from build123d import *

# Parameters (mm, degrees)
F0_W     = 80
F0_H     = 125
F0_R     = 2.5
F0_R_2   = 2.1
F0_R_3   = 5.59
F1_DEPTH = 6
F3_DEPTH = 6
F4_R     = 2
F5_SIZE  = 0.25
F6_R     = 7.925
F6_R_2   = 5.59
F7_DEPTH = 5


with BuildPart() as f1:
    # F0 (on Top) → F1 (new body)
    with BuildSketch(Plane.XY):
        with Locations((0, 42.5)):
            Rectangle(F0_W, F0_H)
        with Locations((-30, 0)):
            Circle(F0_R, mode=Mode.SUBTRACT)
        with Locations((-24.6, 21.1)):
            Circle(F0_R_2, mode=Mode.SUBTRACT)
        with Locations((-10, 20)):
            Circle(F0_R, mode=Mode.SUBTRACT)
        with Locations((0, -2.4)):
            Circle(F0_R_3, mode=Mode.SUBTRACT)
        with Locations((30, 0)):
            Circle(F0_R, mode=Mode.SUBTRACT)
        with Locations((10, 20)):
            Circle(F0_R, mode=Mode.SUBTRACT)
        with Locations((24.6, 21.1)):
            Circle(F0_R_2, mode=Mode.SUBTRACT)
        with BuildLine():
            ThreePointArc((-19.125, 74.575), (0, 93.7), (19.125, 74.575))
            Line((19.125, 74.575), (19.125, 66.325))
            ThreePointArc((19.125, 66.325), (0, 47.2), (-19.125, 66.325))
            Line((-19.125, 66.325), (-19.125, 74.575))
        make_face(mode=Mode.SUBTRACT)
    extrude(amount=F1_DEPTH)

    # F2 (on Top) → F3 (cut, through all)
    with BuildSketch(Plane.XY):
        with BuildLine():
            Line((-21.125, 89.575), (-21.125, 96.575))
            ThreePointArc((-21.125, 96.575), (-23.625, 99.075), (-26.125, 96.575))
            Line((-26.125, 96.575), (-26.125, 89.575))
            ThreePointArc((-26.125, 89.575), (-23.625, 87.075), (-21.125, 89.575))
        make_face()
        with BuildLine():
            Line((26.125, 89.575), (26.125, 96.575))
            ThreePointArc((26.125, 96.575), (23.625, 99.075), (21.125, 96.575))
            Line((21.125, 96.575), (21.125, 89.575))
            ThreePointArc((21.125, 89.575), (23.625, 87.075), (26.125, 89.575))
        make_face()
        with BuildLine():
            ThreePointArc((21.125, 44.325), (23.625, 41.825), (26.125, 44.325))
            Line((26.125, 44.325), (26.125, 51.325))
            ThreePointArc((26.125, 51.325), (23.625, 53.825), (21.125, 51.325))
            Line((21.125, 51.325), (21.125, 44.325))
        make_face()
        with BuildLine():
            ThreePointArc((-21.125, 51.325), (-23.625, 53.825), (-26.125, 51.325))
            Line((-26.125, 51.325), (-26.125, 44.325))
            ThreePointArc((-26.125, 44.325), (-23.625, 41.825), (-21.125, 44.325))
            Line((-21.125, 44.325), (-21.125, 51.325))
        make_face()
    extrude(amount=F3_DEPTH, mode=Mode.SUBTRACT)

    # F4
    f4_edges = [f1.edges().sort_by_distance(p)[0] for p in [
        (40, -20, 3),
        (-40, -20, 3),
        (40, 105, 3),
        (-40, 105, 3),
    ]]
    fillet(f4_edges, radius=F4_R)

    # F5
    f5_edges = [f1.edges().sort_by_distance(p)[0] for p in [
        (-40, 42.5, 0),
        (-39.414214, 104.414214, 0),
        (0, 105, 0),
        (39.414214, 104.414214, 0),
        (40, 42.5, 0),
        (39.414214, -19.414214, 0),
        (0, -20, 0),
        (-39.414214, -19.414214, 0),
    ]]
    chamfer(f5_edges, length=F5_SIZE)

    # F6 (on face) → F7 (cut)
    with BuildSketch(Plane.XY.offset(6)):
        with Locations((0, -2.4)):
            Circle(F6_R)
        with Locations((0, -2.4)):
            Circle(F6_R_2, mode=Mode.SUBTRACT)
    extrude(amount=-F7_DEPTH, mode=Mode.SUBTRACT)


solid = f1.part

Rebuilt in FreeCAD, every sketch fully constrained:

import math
import FreeCAD as App
import Part
import Sketcher
Q = App.Units.Quantity


def edges_at(feature, points):
    """Names of the edges that pass closest to the given points."""
    edges = feature.Shape.Edges
    near = lambda p: min(range(len(edges)), key=lambda i: edges[i].distToShape(Part.Vertex(*p))[0])
    return sorted({f"Edge{near(p) + 1}" for p in points})

doc = App.newDocument("Part")
body = doc.addObject("PartDesign::Body", "Body")

# Sketch on XY plane
sketch1 = body.newObject("Sketcher::SketchObject", "Sketch")
sketch1.AttachmentSupport = (doc.getObject("XY_Plane"), [""])
sketch1.MapMode = "FlatFace"
sketch1.addGeometry([
    Part.LineSegment(App.Vector(-40, 105, 0), App.Vector(-40, -20, 0)),  # 0
    Part.LineSegment(App.Vector(-40, -20, 0), App.Vector(40, -20, 0)),  # 1
    Part.LineSegment(App.Vector(40, -20, 0), App.Vector(40, 105, 0)),  # 2
    Part.LineSegment(App.Vector(40, 105, 0), App.Vector(-40, 105, 0)),  # 3
    Part.Circle(App.Vector(-30, 0, 0), App.Vector(0, 0, 1), 2.5),  # 4
    Part.Circle(App.Vector(-24.6, 21.1, 0), App.Vector(0, 0, 1), 2.1),  # 5
    Part.Circle(App.Vector(-10, 20, 0), App.Vector(0, 0, 1), 2.5),  # 6
    Part.Circle(App.Vector(0, -2.4, 0), App.Vector(0, 0, 1), 5.6),  # 7
    Part.Circle(App.Vector(30, 0, 0), App.Vector(0, 0, 1), 2.5),  # 8
    Part.Circle(App.Vector(10, 20, 0), App.Vector(0, 0, 1), 2.5),  # 9
    Part.Circle(App.Vector(24.6, 21.1, 0), App.Vector(0, 0, 1), 2.1),  # 10
    Part.LineSegment(App.Vector(-19.1, 66.3, 0), App.Vector(-19.1, 74.6, 0)),  # 11
    Part.ArcOfCircle(Part.Circle(App.Vector(0, 74.6, 0), App.Vector(0, 0, 1), 19.1), math.radians(0), math.radians(180)),  # 12
    Part.LineSegment(App.Vector(19.1, 74.6, 0), App.Vector(19.1, 66.3, 0)),  # 13
    Part.ArcOfCircle(Part.Circle(App.Vector(0, 66.3, 0), App.Vector(0, 0, 1), 19.1), math.radians(180), math.radians(360)),  # 14
], False)
sketch1.addConstraint([
    Sketcher.Constraint("Coincident", 0, 2, 1, 1),
    Sketcher.Constraint("Coincident", 1, 2, 2, 1),
    Sketcher.Constraint("Coincident", 2, 2, 3, 1),
    Sketcher.Constraint("Coincident", 3, 2, 0, 1),
    Sketcher.Constraint("Tangent", 11, 2, 12, 2),
    Sketcher.Constraint("Tangent", 12, 1, 13, 1),
    Sketcher.Constraint("Tangent", 13, 2, 14, 2),
    Sketcher.Constraint("Tangent", 14, 1, 11, 1),
    Sketcher.Constraint("Vertical", 0),
    Sketcher.Constraint("Horizontal", 1),
    Sketcher.Constraint("Vertical", 2),
    Sketcher.Constraint("Horizontal", 3),
    Sketcher.Constraint("Vertical", 11),
    Sketcher.Constraint("Vertical", 13),
    Sketcher.Constraint("Equal", 4, 6),
    Sketcher.Constraint("Equal", 6, 8),
    Sketcher.Constraint("Equal", 8, 9),
    Sketcher.Constraint("Equal", 5, 10),
    Sketcher.Constraint("Symmetric", 4, 3, 8, 3, -1, 1),
    Sketcher.Constraint("Symmetric", 6, 3, 9, 3, -2),
    Sketcher.Constraint("Symmetric", 5, 3, 10, 3, -2),
    Sketcher.Constraint("PointOnObject", 4, 3, -1),
    Sketcher.Constraint("PointOnObject", 7, 3, -2),
    Sketcher.Constraint("PointOnObject", 12, 3, -2),
    Sketcher.Constraint("Diameter", 4, Q("5 mm")),
    Sketcher.Constraint("Diameter", 5, Q("4.2 mm")),
    Sketcher.Constraint("Diameter", 7, Q("11.18 mm")),
    Sketcher.Constraint("DistanceX", 1, 1, 1, 2, Q("80 mm")),
    Sketcher.Constraint("DistanceY", 0, 2, 0, 1, Q("125 mm")),
    Sketcher.Constraint("DistanceX", 4, 3, -1, 1, Q("30 mm")),
    Sketcher.Constraint("DistanceX", 6, 3, -1, 1, Q("10 mm")),
    Sketcher.Constraint("DistanceY", -1, 1, 6, 3, Q("20 mm")),
    Sketcher.Constraint("DistanceX", 0, 2, -1, 1, Q("40 mm")),
    Sketcher.Constraint("DistanceY", 0, 2, -1, 1, Q("20 mm")),
    Sketcher.Constraint("Radius", 12, Q("19.125 mm")),
    Sketcher.Constraint("DistanceY", 11, 1, 11, 2, Q("8.25 mm")),
    Sketcher.Constraint("DistanceX", 5, 3, -1, 1, Q("24.6 mm")),
    Sketcher.Constraint("DistanceY", -1, 1, 5, 3, Q("21.1 mm")),
    Sketcher.Constraint("DistanceY", 7, 3, -1, 1, Q("2.4 mm")),
    Sketcher.Constraint("DistanceY", -1, 1, 12, 3, Q("74.575 mm")),
])
pad1 = body.newObject("PartDesign::Pad", "Pad")
pad1.Profile = sketch1
pad1.Length = 6

# Sketch on XY plane
sketch2 = body.newObject("Sketcher::SketchObject", "Sketch001")
sketch2.AttachmentSupport = (doc.getObject("XY_Plane"), [""])
sketch2.MapMode = "FlatFace"
sketch2.addGeometry([
    Part.LineSegment(App.Vector(-21.1, 89.6, 0), App.Vector(-21.1, 96.6, 0)),  # 0
    Part.ArcOfCircle(Part.Circle(App.Vector(-23.6, 96.6, 0), App.Vector(0, 0, 1), 2.5), math.radians(0), math.radians(180)),  # 1
    Part.LineSegment(App.Vector(-26.1, 96.6, 0), App.Vector(-26.1, 89.6, 0)),  # 2
    Part.ArcOfCircle(Part.Circle(App.Vector(-23.6, 89.6, 0), App.Vector(0, 0, 1), 2.5), math.radians(180), math.radians(360)),  # 3
    Part.LineSegment(App.Vector(26.1, 89.6, 0), App.Vector(26.1, 96.6, 0)),  # 4
    Part.ArcOfCircle(Part.Circle(App.Vector(23.6, 96.6, 0), App.Vector(0, 0, 1), 2.5), math.radians(0), math.radians(180)),  # 5
    Part.LineSegment(App.Vector(21.1, 96.6, 0), App.Vector(21.1, 89.6, 0)),  # 6
    Part.ArcOfCircle(Part.Circle(App.Vector(23.6, 89.6, 0), App.Vector(0, 0, 1), 2.5), math.radians(180), math.radians(360)),  # 7
    Part.ArcOfCircle(Part.Circle(App.Vector(23.6, 44.3, 0), App.Vector(0, 0, 1), 2.5), math.radians(180), math.radians(360)),  # 8
    Part.LineSegment(App.Vector(26.1, 44.3, 0), App.Vector(26.1, 51.3, 0)),  # 9
    Part.ArcOfCircle(Part.Circle(App.Vector(23.6, 51.3, 0), App.Vector(0, 0, 1), 2.5), math.radians(0), math.radians(180)),  # 10
    Part.LineSegment(App.Vector(21.1, 51.3, 0), App.Vector(21.1, 44.3, 0)),  # 11
    Part.ArcOfCircle(Part.Circle(App.Vector(-23.6, 51.3, 0), App.Vector(0, 0, 1), 2.5), math.radians(0), math.radians(180)),  # 12
    Part.LineSegment(App.Vector(-26.1, 51.3, 0), App.Vector(-26.1, 44.3, 0)),  # 13
    Part.ArcOfCircle(Part.Circle(App.Vector(-23.6, 44.3, 0), App.Vector(0, 0, 1), 2.5), math.radians(180), math.radians(360)),  # 14
    Part.LineSegment(App.Vector(-21.1, 44.3, 0), App.Vector(-21.1, 51.3, 0)),  # 15
], False)
sketch2.addConstraint([
    Sketcher.Constraint("Tangent", 0, 2, 1, 1),
    Sketcher.Constraint("Tangent", 1, 2, 2, 1),
    Sketcher.Constraint("Tangent", 2, 2, 3, 1),
    Sketcher.Constraint("Tangent", 3, 2, 0, 1),
    Sketcher.Constraint("Tangent", 4, 2, 5, 1),
    Sketcher.Constraint("Tangent", 5, 2, 6, 1),
    Sketcher.Constraint("Tangent", 6, 2, 7, 1),
    Sketcher.Constraint("Tangent", 7, 2, 4, 1),
    Sketcher.Constraint("Tangent", 8, 2, 9, 1),
    Sketcher.Constraint("Tangent", 9, 2, 10, 1),
    Sketcher.Constraint("Tangent", 10, 2, 11, 1),
    Sketcher.Constraint("Tangent", 11, 2, 8, 1),
    Sketcher.Constraint("Tangent", 12, 2, 13, 1),
    Sketcher.Constraint("Tangent", 13, 2, 14, 1),
    Sketcher.Constraint("Tangent", 14, 2, 15, 1),
    Sketcher.Constraint("Tangent", 15, 2, 12, 1),
    Sketcher.Constraint("Vertical", 0),
    Sketcher.Constraint("Vertical", 2),
    Sketcher.Constraint("Vertical", 4),
    Sketcher.Constraint("Vertical", 6),
    Sketcher.Constraint("Vertical", 9),
    Sketcher.Constraint("Vertical", 11),
    Sketcher.Constraint("Vertical", 13),
    Sketcher.Constraint("Vertical", 15),
    Sketcher.Constraint("Equal", 3, 5),
    Sketcher.Constraint("Equal", 7, 8),
    Sketcher.Constraint("Equal", 10, 12),
    Sketcher.Constraint("Symmetric", 1, 3, 5, 3, -2),
    Sketcher.Constraint("Symmetric", 10, 3, 12, 3, -2),
    Sketcher.Constraint("Horizontal", 3, 3, 7, 3),
    Sketcher.Constraint("Horizontal", 8, 3, 14, 3),
    Sketcher.Constraint("Vertical", 7, 3, 8, 3),
    Sketcher.Constraint("Equal", 6, 9),
    Sketcher.Constraint("Radius", 1, Q("2.5 mm")),
    Sketcher.Constraint("DistanceY", 0, 1, 0, 2, Q("7 mm")),
    Sketcher.Constraint("DistanceX", 1, 3, 5, 3, Q("47.25 mm")),
    Sketcher.Constraint("DistanceY", 8, 3, 7, 3, Q("45.25 mm")),
    Sketcher.Constraint("DistanceY", -1, 1, 1, 3, Q("96.575 mm")),
])
pocket1 = body.newObject("PartDesign::Pocket", "Pocket")
pocket1.Profile = sketch2
pocket1.Type = "ThroughAll"
pocket1.Reversed = True
doc.recompute()

fillet = body.newObject("PartDesign::Fillet", "Fillet")
fillet.Base = (pocket1, edges_at(pocket1, [
    (40, -20, 3),
    (-40, -20, 3),
    (40, 105, 3),
    (-40, 105, 3),
]))
fillet.Radius = 2
doc.recompute()

chamfer = body.newObject("PartDesign::Chamfer", "Chamfer")
chamfer.Base = (fillet, edges_at(fillet, [
    (-40, 42.5, 0),
    (-39.414, 104.414, 0),
    (0, 105, 0),
    (39.414, 104.414, 0),
    (40, 42.5, 0),
    (39.414, -19.414, 0),
    (0, -20, 0),
    (-39.414, -19.414, 0),
]))
chamfer.Size = 0.25

# Sketch on XY plane
sketch3 = body.newObject("Sketcher::SketchObject", "Sketch002")
sketch3.AttachmentSupport = (doc.getObject("XY_Plane"), [""])
sketch3.MapMode = "FlatFace"
sketch3.AttachmentOffset = App.Placement(App.Vector(0, 0, 6), App.Rotation())
sketch3.addGeometry([
    Part.Circle(App.Vector(0, -2, 0), App.Vector(0, 0, 1), 8),
    Part.Circle(App.Vector(0, -2, 0), App.Vector(0, 0, 1), 6),
], False)
sketch3.addConstraint([
    Sketcher.Constraint("Coincident", 1, 3, 0, 3),
    Sketcher.Constraint("PointOnObject", 0, 3, -2),
    Sketcher.Constraint("Diameter", 0, Q("15.85 mm")),
    Sketcher.Constraint("Diameter", 1, Q("11.18 mm")),
    Sketcher.Constraint("DistanceY", 0, 3, -1, 1, Q("2.4 mm")),
])
pocket2 = body.newObject("PartDesign::Pocket", "Pocket001")
pocket2.Profile = sketch3
pocket2.Length = 5

doc.recompute()
